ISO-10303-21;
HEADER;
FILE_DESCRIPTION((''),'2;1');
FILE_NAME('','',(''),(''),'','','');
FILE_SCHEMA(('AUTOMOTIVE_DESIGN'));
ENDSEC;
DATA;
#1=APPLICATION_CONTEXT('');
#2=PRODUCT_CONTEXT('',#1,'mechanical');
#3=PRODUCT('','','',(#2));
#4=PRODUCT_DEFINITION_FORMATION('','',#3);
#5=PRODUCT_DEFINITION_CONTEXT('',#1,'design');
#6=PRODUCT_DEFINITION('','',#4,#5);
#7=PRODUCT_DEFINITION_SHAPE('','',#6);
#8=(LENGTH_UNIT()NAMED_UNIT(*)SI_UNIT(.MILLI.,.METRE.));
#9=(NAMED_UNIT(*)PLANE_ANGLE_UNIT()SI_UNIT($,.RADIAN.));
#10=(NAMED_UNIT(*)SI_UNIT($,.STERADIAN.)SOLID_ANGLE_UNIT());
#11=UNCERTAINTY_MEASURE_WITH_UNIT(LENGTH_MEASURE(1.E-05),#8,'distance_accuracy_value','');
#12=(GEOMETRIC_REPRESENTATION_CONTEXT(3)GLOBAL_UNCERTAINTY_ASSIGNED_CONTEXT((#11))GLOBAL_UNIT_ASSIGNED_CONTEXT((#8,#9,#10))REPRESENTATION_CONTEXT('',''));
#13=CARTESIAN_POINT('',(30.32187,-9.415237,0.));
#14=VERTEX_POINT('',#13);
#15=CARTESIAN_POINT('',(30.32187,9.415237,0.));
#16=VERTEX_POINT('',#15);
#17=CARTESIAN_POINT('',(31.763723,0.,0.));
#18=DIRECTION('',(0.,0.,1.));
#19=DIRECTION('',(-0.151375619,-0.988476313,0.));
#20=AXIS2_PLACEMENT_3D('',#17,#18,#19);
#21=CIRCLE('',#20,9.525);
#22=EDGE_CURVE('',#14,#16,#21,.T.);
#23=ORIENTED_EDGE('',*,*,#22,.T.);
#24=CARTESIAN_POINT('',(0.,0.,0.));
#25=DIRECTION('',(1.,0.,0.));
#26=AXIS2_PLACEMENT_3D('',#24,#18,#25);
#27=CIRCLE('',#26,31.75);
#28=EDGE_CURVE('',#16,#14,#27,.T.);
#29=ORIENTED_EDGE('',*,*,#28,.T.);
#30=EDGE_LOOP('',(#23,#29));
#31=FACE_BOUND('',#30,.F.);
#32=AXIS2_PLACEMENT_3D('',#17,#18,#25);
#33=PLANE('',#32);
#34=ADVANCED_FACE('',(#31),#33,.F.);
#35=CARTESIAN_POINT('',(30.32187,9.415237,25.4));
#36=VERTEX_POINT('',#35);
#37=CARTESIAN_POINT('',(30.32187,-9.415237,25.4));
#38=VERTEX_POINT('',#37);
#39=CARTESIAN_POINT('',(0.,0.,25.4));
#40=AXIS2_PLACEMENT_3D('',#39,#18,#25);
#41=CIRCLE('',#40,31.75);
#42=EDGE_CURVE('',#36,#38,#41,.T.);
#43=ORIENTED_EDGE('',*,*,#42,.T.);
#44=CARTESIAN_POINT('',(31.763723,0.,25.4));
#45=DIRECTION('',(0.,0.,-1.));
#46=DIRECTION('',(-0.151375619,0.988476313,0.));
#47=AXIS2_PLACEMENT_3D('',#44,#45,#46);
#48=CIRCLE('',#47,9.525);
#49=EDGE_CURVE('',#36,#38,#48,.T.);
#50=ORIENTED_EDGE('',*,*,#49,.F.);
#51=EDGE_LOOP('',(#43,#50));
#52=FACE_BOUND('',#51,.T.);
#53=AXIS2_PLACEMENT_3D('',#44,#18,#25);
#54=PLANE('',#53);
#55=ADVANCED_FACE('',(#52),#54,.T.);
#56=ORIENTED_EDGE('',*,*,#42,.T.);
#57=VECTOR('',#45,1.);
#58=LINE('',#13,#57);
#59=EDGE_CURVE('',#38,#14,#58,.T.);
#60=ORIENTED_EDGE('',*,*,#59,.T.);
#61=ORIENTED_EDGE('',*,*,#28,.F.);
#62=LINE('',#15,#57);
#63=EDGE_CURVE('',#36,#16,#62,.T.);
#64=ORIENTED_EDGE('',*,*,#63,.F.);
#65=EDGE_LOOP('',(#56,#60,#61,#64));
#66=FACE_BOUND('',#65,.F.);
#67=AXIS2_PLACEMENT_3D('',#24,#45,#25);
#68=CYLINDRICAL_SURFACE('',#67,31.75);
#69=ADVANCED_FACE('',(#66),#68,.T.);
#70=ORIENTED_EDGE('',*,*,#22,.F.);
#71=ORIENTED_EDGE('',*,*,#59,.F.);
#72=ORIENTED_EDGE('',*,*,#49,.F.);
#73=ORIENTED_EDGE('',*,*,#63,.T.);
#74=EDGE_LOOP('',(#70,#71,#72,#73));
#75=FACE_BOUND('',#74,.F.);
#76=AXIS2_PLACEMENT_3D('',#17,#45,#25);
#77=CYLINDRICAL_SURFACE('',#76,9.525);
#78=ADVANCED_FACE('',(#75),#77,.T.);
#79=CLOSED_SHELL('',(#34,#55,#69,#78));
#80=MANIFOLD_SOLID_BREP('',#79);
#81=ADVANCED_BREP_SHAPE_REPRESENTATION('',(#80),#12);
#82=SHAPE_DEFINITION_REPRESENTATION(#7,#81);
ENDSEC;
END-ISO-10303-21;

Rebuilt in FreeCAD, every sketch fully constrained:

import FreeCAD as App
import Part
import Sketcher
from FreeCAD import Vector
Q = App.Units.Quantity

doc = App.newDocument("Part")
body = doc.addObject("PartDesign::Body", "Body")

# Sketch on XY plane
sketch1 = body.newObject("Sketcher::SketchObject", "Sketch")
sketch1.AttachmentSupport = (doc.getObject("XY_Plane"), [""])
sketch1.MapMode = "FlatFace"
sketch1.addGeometry(Part.Circle(Vector(0, 0, 0), Vector(0, 0, 1), 31.75), False)
sketch1.addConstraint([
    Sketcher.Constraint("Coincident", 0, 3, -1, 1),
    Sketcher.Constraint("Diameter", 0, Q("2.5 in")),
])
pad1 = body.newObject("PartDesign::Pad", "Pad")
pad1.Profile = sketch1
pad1.Length = Q("1 in")

# Sketch on XY plane
sketch2 = body.newObject("Sketcher::SketchObject", "Sketch001")
sketch2.AttachmentSupport = (doc.getObject("XY_Plane"), [""])
sketch2.MapMode = "FlatFace"
sketch2.addGeometry(Part.Circle(Vector(31.763723, 0, 0), Vector(0, 0, 1), 9.525), False)
sketch2.addConstraint([
    Sketcher.Constraint("PointOnObject", 0, 3, -1),
    Sketcher.Constraint("Diameter", 0, Q("0.75 in")),
    Sketcher.Constraint("DistanceX", -1, 1, 0, 3, 31.763723),
])
pad2 = body.newObject("PartDesign::Pad", "Pad001")
pad2.Profile = sketch2
pad2.Length = Q("1 in")

doc.recompute()
